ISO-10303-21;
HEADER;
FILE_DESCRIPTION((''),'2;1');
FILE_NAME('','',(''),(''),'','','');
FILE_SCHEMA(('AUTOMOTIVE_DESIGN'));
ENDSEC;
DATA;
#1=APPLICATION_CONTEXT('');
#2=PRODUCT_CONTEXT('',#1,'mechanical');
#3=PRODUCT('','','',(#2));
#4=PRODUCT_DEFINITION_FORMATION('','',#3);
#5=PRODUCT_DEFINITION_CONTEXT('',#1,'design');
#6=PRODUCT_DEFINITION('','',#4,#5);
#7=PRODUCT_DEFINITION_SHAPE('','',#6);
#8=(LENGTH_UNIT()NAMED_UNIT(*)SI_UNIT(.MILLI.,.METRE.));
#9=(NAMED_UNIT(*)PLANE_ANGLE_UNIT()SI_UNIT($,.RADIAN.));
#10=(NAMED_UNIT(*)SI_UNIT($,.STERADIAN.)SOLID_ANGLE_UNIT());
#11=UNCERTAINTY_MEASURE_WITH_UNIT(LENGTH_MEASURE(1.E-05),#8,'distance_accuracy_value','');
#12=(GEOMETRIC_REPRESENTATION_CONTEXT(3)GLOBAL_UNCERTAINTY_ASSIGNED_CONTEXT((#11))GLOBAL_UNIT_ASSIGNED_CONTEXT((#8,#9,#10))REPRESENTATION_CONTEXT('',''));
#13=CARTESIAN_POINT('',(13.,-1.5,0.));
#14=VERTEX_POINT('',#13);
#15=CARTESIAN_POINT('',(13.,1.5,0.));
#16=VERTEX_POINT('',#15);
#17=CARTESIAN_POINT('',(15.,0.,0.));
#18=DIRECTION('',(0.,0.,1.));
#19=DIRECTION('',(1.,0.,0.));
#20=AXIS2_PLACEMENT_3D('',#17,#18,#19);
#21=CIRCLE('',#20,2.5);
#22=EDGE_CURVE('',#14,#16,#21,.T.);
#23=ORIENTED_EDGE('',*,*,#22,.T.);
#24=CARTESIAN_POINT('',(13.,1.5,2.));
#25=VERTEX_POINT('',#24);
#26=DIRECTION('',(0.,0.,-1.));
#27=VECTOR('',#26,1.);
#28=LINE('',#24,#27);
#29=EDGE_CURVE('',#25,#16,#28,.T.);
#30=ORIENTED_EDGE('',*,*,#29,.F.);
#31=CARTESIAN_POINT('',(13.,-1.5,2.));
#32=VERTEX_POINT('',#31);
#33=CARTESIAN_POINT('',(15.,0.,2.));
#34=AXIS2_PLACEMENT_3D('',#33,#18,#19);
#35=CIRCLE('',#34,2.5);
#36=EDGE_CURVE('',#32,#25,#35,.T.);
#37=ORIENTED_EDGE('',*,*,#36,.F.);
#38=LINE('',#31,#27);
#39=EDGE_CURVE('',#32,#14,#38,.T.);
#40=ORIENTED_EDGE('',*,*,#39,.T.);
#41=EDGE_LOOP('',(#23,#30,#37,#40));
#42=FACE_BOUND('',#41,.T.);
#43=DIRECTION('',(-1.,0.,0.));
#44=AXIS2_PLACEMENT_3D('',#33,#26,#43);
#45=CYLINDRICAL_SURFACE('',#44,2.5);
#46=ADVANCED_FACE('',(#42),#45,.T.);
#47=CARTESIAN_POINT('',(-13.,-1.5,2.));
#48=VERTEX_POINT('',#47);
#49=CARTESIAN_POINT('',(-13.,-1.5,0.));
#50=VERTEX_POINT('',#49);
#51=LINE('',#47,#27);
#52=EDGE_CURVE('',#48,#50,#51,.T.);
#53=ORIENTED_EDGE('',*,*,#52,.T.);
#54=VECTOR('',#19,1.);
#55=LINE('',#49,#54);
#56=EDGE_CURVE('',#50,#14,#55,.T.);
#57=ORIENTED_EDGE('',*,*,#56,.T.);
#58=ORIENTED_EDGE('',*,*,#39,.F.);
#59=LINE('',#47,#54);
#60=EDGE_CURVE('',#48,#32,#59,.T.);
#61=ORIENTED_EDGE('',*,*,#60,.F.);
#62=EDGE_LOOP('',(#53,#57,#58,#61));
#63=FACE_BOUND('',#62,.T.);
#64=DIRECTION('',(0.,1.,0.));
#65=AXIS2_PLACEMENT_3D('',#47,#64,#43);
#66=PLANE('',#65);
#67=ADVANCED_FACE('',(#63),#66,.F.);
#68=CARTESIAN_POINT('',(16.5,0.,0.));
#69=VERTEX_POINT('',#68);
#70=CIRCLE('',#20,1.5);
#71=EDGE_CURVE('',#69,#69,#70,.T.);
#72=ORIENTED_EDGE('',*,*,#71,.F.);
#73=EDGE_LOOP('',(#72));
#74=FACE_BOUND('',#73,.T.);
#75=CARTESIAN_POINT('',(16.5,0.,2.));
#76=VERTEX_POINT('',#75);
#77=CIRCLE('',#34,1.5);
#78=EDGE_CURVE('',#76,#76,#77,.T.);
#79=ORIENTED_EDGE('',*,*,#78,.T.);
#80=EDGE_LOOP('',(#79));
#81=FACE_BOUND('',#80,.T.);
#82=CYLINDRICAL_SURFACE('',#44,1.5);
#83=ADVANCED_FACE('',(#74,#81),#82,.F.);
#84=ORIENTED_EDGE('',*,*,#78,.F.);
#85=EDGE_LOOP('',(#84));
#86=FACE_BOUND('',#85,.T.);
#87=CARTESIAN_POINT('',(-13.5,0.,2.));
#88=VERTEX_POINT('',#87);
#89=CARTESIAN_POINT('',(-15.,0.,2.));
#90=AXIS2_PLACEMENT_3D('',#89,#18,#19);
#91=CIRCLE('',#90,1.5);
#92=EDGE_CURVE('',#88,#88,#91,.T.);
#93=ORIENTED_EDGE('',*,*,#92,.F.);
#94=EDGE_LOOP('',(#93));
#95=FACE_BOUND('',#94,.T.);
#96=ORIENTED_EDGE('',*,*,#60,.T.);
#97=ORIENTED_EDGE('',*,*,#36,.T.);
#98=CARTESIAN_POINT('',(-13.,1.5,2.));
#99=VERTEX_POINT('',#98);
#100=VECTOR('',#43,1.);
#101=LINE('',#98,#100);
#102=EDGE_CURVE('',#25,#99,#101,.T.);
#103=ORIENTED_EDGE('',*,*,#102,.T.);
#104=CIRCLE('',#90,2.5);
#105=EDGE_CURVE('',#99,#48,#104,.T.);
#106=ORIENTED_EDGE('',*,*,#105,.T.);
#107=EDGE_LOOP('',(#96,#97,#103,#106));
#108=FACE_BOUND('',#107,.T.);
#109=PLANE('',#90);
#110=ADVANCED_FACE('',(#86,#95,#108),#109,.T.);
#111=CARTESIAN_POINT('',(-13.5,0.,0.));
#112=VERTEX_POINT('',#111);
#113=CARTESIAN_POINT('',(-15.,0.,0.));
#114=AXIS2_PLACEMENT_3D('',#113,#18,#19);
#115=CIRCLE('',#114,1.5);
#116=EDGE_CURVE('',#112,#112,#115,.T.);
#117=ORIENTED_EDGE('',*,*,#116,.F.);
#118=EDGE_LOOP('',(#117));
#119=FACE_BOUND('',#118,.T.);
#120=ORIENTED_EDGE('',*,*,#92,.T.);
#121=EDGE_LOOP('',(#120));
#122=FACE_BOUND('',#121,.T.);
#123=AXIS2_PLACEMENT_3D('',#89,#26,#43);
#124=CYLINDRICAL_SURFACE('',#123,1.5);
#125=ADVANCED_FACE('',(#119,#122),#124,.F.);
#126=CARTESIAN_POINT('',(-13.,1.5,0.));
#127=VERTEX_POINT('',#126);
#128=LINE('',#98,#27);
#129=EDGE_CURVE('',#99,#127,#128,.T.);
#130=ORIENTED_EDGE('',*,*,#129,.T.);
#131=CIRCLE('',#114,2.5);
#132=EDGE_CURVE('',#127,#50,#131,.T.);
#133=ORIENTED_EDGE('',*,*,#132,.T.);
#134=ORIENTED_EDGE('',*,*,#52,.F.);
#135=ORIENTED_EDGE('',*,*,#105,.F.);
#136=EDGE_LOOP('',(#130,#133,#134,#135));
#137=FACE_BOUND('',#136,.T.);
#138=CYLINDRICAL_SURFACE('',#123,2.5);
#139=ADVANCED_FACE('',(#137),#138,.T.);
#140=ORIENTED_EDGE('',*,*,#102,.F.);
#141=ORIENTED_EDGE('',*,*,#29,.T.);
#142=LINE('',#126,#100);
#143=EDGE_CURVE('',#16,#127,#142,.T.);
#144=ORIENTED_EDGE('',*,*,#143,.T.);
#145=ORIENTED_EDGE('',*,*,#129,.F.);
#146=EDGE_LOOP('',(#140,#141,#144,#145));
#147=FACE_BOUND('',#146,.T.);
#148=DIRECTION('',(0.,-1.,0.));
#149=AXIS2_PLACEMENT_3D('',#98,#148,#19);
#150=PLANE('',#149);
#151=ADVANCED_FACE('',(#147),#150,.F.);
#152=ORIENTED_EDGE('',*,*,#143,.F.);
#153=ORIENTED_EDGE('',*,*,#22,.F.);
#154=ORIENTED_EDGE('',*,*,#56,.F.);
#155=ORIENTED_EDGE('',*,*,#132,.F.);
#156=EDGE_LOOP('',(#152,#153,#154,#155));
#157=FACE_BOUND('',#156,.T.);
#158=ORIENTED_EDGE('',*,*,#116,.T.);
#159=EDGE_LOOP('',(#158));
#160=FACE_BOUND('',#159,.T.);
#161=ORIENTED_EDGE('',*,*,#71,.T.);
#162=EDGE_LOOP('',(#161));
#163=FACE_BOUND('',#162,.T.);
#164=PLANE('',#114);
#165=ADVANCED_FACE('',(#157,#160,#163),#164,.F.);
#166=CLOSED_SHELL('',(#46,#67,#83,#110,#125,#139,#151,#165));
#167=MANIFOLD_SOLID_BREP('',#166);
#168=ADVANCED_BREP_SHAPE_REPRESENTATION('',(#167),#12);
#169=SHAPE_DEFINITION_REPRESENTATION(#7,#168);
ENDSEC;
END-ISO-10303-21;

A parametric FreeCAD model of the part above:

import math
import FreeCAD as App
import Part
import Sketcher

V = App.Vector
Q = App.Units.Quantity

doc = App.newDocument("Part")
params = doc.addObject("Spreadsheet::Sheet", "Params")
for row, (alias, value) in enumerate([
    ("sketch1_diameter", "3 mm"),
    ("sketch1_radius", "2.5 mm"),
    ("sketch1_width", "26 mm"),
    ("pad1_length", "2 mm"),
], start=1):
    params.set(f"A{row}", alias)
    params.set(f"B{row}", "=" + value)
    params.setAlias(f"B{row}", alias)

body = doc.addObject("PartDesign::Body", "Body")

# Sketch on XY plane
sketch1 = doc.addObject("Sketcher::SketchObject", "Sketch")
body.addObject(sketch1)
sketch1.AttachmentSupport = (doc.XY_Plane, [""])
sketch1.MapMode = "FlatFace"
sketch1.addGeometry(Part.LineSegment(V(-13, -1.5, 0), V(13, -1.5, 0)), False)
sketch1.addGeometry(Part.ArcOfCircle(Part.Circle(V(15, 0, 0), V(0, 0, 1), 2.5), math.radians(-143.130102), math.radians(143.130102)), False)
sketch1.addGeometry(Part.LineSegment(V(13, 1.5, 0), V(-13, 1.5, 0)), False)
sketch1.addGeometry(Part.ArcOfCircle(Part.Circle(V(-15, 0, 0), V(0, 0, 1), 2.5), math.radians(36.869898), math.radians(323.130102)), False)
sketch1.addGeometry(Part.Circle(V(-15, 0, 0), V(0, 0, 1), 1.5), False)
sketch1.addGeometry(Part.Circle(V(15, 0, 0), V(0, 0, 1), 1.5), False)
sketch1.addConstraint(Sketcher.Constraint("Coincident", 0, 2, 1, 1))
sketch1.addConstraint(Sketcher.Constraint("Coincident", 1, 2, 2, 1))
sketch1.addConstraint(Sketcher.Constraint("Coincident", 2, 2, 3, 1))
sketch1.addConstraint(Sketcher.Constraint("Coincident", 3, 2, 0, 1))
sketch1.addConstraint(Sketcher.Constraint("Horizontal", 0))
sketch1.addConstraint(Sketcher.Constraint("Horizontal", 2))
sketch1.addConstraint(Sketcher.Constraint("Coincident", 4, 3, 3, 3))
sketch1.addConstraint(Sketcher.Constraint("Coincident", 5, 3, 1, 3))
sketch1.addConstraint(Sketcher.Constraint("Equal", 1, 3))
sketch1.addConstraint(Sketcher.Constraint("Equal", 4, 5))
sketch1.addConstraint(Sketcher.Constraint("Symmetric", 1, 3, 3, 3, -1, 1))
sketch1.addConstraint(Sketcher.Constraint("Symmetric", 0, 2, 1, 2, -1))
sketch1.addConstraint(Sketcher.Constraint("Diameter", 4, Q("3 mm")))
sketch1.addConstraint(Sketcher.Constraint("Radius", 1, Q("2.5 mm")))
sketch1.addConstraint(Sketcher.Constraint("DistanceX", 0, 1, 0, 2, Q("26 mm")))
sketch1.addConstraint(Sketcher.Constraint("DistanceX", -1, 1, 1, 3, Q("15 mm")))
sketch1.setExpression("Constraints[12]", "Params.sketch1_diameter")
sketch1.setExpression("Constraints[13]", "Params.sketch1_radius")
sketch1.setExpression("Constraints[14]", "Params.sketch1_width")
pad1 = doc.addObject("PartDesign::Pad", "Pad")
body.addObject(pad1)
pad1.Profile = sketch1
pad1.setExpression("Length", "Params.pad1_length")

doc.recompute()
